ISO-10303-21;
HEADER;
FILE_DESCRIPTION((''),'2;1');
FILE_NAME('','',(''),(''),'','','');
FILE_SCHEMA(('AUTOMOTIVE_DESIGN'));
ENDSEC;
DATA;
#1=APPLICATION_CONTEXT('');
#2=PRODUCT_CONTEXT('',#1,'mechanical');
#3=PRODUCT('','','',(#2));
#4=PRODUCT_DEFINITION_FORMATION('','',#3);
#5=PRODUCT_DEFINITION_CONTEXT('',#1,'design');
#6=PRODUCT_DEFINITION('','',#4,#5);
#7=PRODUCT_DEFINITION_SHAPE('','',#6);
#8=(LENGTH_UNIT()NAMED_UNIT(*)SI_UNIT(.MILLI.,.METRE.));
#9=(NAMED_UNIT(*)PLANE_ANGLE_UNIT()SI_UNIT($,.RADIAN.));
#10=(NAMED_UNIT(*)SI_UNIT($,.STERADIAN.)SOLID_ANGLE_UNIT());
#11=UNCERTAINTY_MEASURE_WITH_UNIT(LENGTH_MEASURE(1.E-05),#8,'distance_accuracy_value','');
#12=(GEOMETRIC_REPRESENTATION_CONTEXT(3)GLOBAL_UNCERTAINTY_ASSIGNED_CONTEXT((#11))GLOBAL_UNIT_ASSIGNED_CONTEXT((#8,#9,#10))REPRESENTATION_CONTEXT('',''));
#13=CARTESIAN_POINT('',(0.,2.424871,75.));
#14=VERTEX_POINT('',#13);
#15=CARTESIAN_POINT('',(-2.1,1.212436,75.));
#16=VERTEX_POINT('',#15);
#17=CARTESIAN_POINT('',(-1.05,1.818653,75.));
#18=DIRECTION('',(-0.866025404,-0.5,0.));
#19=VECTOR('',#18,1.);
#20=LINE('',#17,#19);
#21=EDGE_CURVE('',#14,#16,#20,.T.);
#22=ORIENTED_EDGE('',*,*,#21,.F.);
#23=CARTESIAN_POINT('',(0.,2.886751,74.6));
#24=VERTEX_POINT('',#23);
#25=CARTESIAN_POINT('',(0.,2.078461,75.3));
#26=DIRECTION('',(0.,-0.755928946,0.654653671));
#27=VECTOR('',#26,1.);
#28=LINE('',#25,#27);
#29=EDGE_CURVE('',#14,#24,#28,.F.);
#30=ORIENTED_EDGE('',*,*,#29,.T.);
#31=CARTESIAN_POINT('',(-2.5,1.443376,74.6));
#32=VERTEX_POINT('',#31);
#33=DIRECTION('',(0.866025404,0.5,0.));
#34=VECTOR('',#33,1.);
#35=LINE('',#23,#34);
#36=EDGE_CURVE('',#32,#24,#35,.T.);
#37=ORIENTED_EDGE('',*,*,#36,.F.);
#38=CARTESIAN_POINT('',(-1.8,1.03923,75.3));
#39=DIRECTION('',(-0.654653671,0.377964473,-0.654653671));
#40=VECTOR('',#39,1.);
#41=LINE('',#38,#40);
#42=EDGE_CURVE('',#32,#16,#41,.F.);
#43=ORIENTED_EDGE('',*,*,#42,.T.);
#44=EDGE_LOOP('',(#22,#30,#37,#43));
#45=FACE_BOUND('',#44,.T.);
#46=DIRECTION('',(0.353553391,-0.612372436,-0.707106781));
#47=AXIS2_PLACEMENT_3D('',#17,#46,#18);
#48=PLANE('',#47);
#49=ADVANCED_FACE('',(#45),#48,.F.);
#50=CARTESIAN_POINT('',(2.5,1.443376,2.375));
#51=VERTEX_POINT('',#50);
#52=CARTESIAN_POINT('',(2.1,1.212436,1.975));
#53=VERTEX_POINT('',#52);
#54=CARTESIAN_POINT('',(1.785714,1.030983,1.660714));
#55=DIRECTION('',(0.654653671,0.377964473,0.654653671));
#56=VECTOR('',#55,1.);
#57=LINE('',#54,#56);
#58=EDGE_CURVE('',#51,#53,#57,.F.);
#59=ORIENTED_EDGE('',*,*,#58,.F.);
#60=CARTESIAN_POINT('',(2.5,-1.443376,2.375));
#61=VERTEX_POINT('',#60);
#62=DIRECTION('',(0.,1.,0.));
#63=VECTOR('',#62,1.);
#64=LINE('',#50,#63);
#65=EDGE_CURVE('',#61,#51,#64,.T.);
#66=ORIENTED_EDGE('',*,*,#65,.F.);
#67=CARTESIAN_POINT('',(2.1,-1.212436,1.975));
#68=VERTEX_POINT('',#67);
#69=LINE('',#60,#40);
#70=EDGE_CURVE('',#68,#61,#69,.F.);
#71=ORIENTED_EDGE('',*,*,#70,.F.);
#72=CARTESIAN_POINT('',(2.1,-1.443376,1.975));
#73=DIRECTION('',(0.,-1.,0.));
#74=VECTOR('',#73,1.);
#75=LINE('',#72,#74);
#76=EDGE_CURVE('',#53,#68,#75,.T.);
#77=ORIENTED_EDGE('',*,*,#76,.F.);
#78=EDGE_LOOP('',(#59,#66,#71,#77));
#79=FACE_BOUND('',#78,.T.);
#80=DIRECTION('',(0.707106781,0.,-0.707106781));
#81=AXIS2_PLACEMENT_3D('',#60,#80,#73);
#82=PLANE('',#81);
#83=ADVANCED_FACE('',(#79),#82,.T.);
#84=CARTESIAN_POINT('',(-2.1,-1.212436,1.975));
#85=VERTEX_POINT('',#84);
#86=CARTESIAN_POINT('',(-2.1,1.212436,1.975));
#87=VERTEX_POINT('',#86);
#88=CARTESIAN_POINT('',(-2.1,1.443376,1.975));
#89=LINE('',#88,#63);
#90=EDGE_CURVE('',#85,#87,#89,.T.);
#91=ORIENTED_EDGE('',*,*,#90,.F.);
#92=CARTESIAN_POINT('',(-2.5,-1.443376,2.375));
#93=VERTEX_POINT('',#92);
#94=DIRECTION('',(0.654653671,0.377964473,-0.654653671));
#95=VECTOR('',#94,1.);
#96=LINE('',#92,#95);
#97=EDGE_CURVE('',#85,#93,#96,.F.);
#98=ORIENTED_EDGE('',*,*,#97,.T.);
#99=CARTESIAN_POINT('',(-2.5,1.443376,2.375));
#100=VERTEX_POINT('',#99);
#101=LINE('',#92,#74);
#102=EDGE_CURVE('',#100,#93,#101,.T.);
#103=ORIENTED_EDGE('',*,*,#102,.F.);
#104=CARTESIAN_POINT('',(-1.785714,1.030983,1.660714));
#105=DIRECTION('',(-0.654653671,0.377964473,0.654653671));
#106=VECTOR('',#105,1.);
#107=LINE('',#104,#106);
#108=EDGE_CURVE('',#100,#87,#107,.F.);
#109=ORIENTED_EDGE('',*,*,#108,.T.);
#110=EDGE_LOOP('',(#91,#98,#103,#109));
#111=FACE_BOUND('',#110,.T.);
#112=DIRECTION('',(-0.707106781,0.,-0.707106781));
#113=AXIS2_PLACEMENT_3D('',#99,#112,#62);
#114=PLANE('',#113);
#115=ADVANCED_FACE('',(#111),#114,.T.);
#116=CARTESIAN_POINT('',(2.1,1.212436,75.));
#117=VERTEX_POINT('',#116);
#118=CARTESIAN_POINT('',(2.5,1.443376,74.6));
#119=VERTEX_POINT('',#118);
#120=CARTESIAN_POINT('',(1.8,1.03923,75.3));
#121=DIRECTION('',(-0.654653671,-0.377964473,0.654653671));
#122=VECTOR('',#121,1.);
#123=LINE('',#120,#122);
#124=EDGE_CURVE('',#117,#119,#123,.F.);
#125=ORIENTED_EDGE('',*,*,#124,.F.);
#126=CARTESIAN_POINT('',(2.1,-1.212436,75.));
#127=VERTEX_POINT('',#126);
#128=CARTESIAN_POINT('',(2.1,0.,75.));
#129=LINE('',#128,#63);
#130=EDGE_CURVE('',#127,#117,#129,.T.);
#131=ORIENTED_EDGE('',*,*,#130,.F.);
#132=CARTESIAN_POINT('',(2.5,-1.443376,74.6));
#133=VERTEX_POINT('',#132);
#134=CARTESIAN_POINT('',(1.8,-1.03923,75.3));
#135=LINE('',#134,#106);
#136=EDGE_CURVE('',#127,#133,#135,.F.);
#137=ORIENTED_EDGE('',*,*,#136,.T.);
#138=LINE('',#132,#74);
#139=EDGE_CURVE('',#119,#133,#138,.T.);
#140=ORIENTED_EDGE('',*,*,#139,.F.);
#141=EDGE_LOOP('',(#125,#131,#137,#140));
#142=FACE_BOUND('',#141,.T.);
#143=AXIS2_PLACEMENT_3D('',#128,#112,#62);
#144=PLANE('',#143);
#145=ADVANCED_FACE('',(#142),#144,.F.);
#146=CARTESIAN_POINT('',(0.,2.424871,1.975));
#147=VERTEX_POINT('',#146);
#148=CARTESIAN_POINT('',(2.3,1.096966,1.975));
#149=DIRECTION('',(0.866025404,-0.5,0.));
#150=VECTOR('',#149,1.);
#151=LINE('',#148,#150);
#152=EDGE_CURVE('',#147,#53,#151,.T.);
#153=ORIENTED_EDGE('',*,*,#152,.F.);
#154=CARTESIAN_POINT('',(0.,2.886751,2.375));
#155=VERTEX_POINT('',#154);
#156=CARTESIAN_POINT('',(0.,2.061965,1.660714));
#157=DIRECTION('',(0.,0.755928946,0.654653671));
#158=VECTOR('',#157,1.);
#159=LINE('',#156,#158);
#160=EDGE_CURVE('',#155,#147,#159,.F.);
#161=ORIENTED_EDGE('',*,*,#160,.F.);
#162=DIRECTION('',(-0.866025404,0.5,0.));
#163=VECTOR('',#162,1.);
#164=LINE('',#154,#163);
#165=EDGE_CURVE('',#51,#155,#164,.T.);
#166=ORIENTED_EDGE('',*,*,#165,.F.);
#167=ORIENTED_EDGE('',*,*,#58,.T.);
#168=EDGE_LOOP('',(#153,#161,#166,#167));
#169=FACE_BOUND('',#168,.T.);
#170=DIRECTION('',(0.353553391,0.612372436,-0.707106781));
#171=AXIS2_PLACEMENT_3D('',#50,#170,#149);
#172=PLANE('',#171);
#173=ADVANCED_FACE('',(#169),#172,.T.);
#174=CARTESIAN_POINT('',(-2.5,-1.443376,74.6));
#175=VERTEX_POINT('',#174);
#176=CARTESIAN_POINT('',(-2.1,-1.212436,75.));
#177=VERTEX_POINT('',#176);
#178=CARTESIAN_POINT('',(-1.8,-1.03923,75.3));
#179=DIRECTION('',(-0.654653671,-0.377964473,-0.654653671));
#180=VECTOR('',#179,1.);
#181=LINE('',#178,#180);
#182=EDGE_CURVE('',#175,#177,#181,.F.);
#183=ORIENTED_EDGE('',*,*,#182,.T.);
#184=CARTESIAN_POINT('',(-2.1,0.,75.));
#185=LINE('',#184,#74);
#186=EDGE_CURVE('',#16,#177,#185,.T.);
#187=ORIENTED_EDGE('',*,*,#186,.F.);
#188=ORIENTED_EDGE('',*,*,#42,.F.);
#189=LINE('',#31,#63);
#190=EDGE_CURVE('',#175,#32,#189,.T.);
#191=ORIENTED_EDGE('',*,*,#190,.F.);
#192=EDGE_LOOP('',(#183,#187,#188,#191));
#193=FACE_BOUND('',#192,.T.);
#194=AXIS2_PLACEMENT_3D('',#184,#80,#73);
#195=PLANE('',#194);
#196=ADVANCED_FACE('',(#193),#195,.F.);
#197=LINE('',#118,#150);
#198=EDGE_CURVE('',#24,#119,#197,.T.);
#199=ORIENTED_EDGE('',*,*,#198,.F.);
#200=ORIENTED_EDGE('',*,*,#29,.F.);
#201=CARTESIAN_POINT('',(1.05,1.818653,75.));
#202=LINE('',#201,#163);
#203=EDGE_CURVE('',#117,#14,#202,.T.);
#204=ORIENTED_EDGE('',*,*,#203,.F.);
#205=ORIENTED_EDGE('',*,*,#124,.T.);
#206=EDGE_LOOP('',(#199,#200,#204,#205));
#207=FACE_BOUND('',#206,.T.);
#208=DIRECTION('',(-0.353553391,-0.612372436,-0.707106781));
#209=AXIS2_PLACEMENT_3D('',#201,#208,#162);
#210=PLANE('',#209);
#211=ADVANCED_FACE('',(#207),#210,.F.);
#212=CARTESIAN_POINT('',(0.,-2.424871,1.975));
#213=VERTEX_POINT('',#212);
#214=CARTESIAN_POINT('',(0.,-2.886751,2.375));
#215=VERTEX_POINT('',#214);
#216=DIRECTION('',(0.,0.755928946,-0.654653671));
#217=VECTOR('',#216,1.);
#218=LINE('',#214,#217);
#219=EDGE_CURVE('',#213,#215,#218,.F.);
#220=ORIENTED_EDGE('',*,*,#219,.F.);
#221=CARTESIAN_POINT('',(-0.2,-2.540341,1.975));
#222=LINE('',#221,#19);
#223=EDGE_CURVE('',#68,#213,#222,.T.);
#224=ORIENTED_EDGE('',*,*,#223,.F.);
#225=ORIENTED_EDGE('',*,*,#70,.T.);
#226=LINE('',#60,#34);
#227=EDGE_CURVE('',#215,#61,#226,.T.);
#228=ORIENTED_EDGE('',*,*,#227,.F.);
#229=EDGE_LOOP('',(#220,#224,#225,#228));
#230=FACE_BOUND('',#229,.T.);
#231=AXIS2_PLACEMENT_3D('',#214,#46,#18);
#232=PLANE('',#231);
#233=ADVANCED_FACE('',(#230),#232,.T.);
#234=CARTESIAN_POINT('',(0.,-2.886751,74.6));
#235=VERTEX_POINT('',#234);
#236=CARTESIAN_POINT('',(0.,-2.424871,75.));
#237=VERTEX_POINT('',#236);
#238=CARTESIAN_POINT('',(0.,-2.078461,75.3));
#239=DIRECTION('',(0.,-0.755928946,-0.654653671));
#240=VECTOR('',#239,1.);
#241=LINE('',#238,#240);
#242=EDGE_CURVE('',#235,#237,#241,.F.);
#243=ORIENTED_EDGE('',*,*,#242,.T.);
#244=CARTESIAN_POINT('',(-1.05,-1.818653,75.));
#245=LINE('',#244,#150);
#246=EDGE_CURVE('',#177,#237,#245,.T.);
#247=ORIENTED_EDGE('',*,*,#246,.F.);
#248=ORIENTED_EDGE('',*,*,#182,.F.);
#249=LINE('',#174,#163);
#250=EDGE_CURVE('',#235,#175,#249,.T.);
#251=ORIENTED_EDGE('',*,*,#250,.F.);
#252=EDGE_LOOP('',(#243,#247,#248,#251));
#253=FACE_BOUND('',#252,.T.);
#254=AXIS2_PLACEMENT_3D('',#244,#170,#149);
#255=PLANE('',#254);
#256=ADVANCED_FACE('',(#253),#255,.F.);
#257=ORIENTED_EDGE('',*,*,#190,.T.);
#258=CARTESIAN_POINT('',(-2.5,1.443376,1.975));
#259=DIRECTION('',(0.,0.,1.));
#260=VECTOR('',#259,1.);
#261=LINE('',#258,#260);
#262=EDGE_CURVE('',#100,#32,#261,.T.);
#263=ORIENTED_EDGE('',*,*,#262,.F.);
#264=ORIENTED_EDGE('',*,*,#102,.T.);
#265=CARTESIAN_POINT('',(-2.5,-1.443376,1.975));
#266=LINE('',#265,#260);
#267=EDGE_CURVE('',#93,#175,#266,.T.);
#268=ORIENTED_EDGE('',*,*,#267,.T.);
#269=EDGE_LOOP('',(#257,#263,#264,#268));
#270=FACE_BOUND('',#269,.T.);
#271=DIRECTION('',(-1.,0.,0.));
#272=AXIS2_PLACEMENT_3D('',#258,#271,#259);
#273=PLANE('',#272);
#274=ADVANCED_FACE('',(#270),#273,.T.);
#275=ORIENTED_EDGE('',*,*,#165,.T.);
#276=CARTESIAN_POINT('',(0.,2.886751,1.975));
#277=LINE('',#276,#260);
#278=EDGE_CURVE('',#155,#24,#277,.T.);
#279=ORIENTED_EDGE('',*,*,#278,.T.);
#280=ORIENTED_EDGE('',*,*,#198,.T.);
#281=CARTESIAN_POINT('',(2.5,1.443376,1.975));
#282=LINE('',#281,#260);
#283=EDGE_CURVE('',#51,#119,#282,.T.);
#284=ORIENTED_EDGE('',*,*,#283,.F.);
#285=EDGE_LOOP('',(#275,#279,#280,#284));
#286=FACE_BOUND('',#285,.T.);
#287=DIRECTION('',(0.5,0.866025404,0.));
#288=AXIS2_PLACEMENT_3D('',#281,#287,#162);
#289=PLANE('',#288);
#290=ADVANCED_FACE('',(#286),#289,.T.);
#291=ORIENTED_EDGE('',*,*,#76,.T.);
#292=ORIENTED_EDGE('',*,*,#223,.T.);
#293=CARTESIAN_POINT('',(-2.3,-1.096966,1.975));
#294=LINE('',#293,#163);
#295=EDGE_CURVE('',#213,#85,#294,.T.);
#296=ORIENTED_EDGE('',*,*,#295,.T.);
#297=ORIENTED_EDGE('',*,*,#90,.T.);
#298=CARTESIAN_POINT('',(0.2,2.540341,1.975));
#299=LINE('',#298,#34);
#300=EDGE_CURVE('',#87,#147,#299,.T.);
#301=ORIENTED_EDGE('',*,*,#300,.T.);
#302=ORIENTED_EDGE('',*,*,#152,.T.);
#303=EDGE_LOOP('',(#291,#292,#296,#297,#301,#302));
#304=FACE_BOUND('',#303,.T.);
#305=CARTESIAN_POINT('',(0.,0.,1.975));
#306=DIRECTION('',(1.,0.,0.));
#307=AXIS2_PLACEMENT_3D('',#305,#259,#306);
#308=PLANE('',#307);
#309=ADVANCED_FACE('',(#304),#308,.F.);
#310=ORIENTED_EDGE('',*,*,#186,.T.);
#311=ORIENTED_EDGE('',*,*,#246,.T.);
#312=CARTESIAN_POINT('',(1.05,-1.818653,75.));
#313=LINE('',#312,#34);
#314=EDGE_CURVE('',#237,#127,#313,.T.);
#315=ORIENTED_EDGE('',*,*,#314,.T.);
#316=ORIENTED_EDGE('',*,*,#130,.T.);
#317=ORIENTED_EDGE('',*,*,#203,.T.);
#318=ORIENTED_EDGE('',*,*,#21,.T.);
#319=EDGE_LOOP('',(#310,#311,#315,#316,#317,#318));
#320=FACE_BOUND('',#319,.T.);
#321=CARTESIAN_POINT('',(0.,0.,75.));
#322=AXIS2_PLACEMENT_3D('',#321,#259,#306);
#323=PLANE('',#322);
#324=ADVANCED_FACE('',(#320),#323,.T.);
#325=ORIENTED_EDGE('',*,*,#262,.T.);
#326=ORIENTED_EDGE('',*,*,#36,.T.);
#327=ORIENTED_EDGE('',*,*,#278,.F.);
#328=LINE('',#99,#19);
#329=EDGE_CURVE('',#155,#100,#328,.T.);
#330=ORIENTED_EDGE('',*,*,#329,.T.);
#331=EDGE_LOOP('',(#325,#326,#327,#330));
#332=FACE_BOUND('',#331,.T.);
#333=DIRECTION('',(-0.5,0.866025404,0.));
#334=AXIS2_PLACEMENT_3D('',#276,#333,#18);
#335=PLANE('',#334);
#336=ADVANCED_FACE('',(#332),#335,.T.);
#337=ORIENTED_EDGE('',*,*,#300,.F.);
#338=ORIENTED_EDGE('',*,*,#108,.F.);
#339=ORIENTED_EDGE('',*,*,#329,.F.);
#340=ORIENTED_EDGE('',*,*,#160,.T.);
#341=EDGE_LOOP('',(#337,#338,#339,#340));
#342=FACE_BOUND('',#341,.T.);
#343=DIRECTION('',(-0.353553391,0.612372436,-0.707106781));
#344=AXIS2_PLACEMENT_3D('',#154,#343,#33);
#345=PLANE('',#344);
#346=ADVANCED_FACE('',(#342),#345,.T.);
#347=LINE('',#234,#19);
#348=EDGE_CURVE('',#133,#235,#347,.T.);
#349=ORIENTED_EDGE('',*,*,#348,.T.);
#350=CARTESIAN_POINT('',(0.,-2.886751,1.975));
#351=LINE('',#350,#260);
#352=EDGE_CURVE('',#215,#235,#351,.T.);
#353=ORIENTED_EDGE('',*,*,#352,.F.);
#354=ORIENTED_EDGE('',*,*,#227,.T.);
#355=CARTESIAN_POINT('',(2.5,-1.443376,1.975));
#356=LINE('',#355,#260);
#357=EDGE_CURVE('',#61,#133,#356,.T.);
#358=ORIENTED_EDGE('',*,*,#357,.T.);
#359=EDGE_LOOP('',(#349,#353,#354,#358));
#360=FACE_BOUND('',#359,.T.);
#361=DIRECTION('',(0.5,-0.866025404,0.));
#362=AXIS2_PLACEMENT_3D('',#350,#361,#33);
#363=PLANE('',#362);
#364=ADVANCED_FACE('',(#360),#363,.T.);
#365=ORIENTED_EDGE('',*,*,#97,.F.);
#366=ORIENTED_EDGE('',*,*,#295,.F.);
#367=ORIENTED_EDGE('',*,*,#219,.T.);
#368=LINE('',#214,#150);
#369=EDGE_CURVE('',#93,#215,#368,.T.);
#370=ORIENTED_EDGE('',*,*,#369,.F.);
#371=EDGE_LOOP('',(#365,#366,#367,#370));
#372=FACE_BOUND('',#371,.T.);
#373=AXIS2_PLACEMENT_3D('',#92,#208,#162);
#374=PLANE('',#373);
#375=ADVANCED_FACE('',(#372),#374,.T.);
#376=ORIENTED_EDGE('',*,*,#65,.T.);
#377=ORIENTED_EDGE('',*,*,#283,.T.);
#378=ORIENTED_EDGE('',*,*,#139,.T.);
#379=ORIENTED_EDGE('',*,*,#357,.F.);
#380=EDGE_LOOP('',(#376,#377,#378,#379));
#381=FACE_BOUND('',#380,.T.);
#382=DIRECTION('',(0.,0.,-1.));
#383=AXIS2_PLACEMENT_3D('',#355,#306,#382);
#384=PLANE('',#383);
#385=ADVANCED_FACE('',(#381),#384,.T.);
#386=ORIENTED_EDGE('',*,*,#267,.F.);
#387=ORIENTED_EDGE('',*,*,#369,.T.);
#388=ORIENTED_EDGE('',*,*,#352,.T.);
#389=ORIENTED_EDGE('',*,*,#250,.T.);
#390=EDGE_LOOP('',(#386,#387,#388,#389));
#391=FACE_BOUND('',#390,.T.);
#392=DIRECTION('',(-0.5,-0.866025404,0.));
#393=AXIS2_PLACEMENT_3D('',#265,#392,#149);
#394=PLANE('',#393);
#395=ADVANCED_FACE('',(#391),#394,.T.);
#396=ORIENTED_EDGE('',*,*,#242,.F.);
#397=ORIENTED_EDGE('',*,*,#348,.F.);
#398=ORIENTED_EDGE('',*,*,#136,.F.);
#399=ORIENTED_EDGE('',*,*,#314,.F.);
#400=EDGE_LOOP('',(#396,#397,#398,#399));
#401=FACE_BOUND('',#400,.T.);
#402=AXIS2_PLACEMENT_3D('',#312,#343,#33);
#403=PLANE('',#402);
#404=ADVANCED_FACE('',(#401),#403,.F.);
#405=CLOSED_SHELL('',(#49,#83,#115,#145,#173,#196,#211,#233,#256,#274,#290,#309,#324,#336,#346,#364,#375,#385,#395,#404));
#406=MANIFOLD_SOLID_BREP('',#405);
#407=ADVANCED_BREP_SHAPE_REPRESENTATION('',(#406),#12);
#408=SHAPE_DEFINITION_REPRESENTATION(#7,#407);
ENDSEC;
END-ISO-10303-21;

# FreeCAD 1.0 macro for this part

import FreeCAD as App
import Part
import Sketcher
from FreeCAD import Vector
Q = App.Units.Quantity


def edges_at(feature, points):
    """Names of the edges that pass closest to the given points."""
    edges = feature.Shape.Edges
    near = lambda p: min(range(len(edges)), key=lambda i: edges[i].distToShape(Part.Vertex(*p))[0])
    return sorted({f"Edge{near(p) + 1}" for p in points})

doc = App.newDocument("Part")
body = doc.addObject("PartDesign::Body", "Body")

# Sketch on XY plane
sketch1 = body.newObject("Sketcher::SketchObject", "Sketch")
sketch1.AttachmentSupport = (doc.getObject("XY_Plane"), [""])
sketch1.MapMode = "FlatFace"
sketch1.AttachmentOffset = App.Placement(Vector(0, 0, 75), App.Rotation())
sketch1.addGeometry(Part.LineSegment(Vector(0, -2.9, 0), Vector(2.5, -1.4, 0)), False)
sketch1.addGeometry(Part.LineSegment(Vector(2.5, -1.4, 0), Vector(2.5, 1.4, 0)), False)
sketch1.addGeometry(Part.LineSegment(Vector(2.5, 1.4, 0), Vector(0, 2.9, 0)), False)
sketch1.addGeometry(Part.LineSegment(Vector(0, 2.9, 0), Vector(-2.5, 1.4, 0)), False)
sketch1.addGeometry(Part.LineSegment(Vector(-2.5, 1.4, 0), Vector(-2.5, -1.4, 0)), False)
sketch1.addGeometry(Part.LineSegment(Vector(-2.5, -1.4, 0), Vector(0, -2.9, 0)), False)
sketch1.addConstraint(Sketcher.Constraint("Coincident", 0, 2, 1, 1))
sketch1.addConstraint(Sketcher.Constraint("Coincident", 1, 2, 2, 1))
sketch1.addConstraint(Sketcher.Constraint("Coincident", 2, 2, 3, 1))
sketch1.addConstraint(Sketcher.Constraint("Coincident", 3, 2, 4, 1))
sketch1.addConstraint(Sketcher.Constraint("Coincident", 4, 2, 5, 1))
sketch1.addConstraint(Sketcher.Constraint("Coincident", 5, 2, 0, 1))
sketch1.addConstraint(Sketcher.Constraint("Vertical", 1))
sketch1.addConstraint(Sketcher.Constraint("Vertical", 4))
sketch1.addConstraint(Sketcher.Constraint("Symmetric", 0, 2, 3, 2, -1, 1))
sketch1.addConstraint(Sketcher.Constraint("Symmetric", 2, 2, 5, 2, -1, 1))
sketch1.addConstraint(Sketcher.Constraint("PointOnObject", 2, 2, -2))
sketch1.addConstraint(Sketcher.Constraint("Parallel", 2, 5))
sketch1.addConstraint(Sketcher.Constraint("Horizontal", 1, 2, 3, 2))
sketch1.addConstraint(Sketcher.Constraint("Angle", 0, Q("30 deg")))
sketch1.addConstraint(Sketcher.Constraint("DistanceX", 3, 2, 1, 2, Q("5 mm")))
sketch1.addConstraint(Sketcher.Constraint("DistanceY", 1, 1, 1, 2, Q("2.886751 mm")))
pad1 = body.newObject("PartDesign::Pad", "Pad")
pad1.Profile = sketch1
pad1.Length = 73.025
pad1.Reversed = True
doc.recompute()

chamfer = body.newObject("PartDesign::Chamfer", "Chamfer")
chamfer.Base = (pad1, edges_at(pad1, [
    (2.5, 0, 1.975),
    (1.25, 2.165, 1.975),
    (-1.25, 2.165, 1.975),
    (-2.5, 0, 1.975),
    (-1.25, -2.165, 1.975),
    (-2.5, 0, 75),
    (-1.25, 2.165, 75),
    (1.25, 2.165, 75),
    (1.25, -2.165, 1.975),
    (2.5, 0, 75),
    (1.25, -2.165, 75),
    (-1.25, -2.165, 75),
]))
chamfer.Size = 0.4

doc.recompute()
